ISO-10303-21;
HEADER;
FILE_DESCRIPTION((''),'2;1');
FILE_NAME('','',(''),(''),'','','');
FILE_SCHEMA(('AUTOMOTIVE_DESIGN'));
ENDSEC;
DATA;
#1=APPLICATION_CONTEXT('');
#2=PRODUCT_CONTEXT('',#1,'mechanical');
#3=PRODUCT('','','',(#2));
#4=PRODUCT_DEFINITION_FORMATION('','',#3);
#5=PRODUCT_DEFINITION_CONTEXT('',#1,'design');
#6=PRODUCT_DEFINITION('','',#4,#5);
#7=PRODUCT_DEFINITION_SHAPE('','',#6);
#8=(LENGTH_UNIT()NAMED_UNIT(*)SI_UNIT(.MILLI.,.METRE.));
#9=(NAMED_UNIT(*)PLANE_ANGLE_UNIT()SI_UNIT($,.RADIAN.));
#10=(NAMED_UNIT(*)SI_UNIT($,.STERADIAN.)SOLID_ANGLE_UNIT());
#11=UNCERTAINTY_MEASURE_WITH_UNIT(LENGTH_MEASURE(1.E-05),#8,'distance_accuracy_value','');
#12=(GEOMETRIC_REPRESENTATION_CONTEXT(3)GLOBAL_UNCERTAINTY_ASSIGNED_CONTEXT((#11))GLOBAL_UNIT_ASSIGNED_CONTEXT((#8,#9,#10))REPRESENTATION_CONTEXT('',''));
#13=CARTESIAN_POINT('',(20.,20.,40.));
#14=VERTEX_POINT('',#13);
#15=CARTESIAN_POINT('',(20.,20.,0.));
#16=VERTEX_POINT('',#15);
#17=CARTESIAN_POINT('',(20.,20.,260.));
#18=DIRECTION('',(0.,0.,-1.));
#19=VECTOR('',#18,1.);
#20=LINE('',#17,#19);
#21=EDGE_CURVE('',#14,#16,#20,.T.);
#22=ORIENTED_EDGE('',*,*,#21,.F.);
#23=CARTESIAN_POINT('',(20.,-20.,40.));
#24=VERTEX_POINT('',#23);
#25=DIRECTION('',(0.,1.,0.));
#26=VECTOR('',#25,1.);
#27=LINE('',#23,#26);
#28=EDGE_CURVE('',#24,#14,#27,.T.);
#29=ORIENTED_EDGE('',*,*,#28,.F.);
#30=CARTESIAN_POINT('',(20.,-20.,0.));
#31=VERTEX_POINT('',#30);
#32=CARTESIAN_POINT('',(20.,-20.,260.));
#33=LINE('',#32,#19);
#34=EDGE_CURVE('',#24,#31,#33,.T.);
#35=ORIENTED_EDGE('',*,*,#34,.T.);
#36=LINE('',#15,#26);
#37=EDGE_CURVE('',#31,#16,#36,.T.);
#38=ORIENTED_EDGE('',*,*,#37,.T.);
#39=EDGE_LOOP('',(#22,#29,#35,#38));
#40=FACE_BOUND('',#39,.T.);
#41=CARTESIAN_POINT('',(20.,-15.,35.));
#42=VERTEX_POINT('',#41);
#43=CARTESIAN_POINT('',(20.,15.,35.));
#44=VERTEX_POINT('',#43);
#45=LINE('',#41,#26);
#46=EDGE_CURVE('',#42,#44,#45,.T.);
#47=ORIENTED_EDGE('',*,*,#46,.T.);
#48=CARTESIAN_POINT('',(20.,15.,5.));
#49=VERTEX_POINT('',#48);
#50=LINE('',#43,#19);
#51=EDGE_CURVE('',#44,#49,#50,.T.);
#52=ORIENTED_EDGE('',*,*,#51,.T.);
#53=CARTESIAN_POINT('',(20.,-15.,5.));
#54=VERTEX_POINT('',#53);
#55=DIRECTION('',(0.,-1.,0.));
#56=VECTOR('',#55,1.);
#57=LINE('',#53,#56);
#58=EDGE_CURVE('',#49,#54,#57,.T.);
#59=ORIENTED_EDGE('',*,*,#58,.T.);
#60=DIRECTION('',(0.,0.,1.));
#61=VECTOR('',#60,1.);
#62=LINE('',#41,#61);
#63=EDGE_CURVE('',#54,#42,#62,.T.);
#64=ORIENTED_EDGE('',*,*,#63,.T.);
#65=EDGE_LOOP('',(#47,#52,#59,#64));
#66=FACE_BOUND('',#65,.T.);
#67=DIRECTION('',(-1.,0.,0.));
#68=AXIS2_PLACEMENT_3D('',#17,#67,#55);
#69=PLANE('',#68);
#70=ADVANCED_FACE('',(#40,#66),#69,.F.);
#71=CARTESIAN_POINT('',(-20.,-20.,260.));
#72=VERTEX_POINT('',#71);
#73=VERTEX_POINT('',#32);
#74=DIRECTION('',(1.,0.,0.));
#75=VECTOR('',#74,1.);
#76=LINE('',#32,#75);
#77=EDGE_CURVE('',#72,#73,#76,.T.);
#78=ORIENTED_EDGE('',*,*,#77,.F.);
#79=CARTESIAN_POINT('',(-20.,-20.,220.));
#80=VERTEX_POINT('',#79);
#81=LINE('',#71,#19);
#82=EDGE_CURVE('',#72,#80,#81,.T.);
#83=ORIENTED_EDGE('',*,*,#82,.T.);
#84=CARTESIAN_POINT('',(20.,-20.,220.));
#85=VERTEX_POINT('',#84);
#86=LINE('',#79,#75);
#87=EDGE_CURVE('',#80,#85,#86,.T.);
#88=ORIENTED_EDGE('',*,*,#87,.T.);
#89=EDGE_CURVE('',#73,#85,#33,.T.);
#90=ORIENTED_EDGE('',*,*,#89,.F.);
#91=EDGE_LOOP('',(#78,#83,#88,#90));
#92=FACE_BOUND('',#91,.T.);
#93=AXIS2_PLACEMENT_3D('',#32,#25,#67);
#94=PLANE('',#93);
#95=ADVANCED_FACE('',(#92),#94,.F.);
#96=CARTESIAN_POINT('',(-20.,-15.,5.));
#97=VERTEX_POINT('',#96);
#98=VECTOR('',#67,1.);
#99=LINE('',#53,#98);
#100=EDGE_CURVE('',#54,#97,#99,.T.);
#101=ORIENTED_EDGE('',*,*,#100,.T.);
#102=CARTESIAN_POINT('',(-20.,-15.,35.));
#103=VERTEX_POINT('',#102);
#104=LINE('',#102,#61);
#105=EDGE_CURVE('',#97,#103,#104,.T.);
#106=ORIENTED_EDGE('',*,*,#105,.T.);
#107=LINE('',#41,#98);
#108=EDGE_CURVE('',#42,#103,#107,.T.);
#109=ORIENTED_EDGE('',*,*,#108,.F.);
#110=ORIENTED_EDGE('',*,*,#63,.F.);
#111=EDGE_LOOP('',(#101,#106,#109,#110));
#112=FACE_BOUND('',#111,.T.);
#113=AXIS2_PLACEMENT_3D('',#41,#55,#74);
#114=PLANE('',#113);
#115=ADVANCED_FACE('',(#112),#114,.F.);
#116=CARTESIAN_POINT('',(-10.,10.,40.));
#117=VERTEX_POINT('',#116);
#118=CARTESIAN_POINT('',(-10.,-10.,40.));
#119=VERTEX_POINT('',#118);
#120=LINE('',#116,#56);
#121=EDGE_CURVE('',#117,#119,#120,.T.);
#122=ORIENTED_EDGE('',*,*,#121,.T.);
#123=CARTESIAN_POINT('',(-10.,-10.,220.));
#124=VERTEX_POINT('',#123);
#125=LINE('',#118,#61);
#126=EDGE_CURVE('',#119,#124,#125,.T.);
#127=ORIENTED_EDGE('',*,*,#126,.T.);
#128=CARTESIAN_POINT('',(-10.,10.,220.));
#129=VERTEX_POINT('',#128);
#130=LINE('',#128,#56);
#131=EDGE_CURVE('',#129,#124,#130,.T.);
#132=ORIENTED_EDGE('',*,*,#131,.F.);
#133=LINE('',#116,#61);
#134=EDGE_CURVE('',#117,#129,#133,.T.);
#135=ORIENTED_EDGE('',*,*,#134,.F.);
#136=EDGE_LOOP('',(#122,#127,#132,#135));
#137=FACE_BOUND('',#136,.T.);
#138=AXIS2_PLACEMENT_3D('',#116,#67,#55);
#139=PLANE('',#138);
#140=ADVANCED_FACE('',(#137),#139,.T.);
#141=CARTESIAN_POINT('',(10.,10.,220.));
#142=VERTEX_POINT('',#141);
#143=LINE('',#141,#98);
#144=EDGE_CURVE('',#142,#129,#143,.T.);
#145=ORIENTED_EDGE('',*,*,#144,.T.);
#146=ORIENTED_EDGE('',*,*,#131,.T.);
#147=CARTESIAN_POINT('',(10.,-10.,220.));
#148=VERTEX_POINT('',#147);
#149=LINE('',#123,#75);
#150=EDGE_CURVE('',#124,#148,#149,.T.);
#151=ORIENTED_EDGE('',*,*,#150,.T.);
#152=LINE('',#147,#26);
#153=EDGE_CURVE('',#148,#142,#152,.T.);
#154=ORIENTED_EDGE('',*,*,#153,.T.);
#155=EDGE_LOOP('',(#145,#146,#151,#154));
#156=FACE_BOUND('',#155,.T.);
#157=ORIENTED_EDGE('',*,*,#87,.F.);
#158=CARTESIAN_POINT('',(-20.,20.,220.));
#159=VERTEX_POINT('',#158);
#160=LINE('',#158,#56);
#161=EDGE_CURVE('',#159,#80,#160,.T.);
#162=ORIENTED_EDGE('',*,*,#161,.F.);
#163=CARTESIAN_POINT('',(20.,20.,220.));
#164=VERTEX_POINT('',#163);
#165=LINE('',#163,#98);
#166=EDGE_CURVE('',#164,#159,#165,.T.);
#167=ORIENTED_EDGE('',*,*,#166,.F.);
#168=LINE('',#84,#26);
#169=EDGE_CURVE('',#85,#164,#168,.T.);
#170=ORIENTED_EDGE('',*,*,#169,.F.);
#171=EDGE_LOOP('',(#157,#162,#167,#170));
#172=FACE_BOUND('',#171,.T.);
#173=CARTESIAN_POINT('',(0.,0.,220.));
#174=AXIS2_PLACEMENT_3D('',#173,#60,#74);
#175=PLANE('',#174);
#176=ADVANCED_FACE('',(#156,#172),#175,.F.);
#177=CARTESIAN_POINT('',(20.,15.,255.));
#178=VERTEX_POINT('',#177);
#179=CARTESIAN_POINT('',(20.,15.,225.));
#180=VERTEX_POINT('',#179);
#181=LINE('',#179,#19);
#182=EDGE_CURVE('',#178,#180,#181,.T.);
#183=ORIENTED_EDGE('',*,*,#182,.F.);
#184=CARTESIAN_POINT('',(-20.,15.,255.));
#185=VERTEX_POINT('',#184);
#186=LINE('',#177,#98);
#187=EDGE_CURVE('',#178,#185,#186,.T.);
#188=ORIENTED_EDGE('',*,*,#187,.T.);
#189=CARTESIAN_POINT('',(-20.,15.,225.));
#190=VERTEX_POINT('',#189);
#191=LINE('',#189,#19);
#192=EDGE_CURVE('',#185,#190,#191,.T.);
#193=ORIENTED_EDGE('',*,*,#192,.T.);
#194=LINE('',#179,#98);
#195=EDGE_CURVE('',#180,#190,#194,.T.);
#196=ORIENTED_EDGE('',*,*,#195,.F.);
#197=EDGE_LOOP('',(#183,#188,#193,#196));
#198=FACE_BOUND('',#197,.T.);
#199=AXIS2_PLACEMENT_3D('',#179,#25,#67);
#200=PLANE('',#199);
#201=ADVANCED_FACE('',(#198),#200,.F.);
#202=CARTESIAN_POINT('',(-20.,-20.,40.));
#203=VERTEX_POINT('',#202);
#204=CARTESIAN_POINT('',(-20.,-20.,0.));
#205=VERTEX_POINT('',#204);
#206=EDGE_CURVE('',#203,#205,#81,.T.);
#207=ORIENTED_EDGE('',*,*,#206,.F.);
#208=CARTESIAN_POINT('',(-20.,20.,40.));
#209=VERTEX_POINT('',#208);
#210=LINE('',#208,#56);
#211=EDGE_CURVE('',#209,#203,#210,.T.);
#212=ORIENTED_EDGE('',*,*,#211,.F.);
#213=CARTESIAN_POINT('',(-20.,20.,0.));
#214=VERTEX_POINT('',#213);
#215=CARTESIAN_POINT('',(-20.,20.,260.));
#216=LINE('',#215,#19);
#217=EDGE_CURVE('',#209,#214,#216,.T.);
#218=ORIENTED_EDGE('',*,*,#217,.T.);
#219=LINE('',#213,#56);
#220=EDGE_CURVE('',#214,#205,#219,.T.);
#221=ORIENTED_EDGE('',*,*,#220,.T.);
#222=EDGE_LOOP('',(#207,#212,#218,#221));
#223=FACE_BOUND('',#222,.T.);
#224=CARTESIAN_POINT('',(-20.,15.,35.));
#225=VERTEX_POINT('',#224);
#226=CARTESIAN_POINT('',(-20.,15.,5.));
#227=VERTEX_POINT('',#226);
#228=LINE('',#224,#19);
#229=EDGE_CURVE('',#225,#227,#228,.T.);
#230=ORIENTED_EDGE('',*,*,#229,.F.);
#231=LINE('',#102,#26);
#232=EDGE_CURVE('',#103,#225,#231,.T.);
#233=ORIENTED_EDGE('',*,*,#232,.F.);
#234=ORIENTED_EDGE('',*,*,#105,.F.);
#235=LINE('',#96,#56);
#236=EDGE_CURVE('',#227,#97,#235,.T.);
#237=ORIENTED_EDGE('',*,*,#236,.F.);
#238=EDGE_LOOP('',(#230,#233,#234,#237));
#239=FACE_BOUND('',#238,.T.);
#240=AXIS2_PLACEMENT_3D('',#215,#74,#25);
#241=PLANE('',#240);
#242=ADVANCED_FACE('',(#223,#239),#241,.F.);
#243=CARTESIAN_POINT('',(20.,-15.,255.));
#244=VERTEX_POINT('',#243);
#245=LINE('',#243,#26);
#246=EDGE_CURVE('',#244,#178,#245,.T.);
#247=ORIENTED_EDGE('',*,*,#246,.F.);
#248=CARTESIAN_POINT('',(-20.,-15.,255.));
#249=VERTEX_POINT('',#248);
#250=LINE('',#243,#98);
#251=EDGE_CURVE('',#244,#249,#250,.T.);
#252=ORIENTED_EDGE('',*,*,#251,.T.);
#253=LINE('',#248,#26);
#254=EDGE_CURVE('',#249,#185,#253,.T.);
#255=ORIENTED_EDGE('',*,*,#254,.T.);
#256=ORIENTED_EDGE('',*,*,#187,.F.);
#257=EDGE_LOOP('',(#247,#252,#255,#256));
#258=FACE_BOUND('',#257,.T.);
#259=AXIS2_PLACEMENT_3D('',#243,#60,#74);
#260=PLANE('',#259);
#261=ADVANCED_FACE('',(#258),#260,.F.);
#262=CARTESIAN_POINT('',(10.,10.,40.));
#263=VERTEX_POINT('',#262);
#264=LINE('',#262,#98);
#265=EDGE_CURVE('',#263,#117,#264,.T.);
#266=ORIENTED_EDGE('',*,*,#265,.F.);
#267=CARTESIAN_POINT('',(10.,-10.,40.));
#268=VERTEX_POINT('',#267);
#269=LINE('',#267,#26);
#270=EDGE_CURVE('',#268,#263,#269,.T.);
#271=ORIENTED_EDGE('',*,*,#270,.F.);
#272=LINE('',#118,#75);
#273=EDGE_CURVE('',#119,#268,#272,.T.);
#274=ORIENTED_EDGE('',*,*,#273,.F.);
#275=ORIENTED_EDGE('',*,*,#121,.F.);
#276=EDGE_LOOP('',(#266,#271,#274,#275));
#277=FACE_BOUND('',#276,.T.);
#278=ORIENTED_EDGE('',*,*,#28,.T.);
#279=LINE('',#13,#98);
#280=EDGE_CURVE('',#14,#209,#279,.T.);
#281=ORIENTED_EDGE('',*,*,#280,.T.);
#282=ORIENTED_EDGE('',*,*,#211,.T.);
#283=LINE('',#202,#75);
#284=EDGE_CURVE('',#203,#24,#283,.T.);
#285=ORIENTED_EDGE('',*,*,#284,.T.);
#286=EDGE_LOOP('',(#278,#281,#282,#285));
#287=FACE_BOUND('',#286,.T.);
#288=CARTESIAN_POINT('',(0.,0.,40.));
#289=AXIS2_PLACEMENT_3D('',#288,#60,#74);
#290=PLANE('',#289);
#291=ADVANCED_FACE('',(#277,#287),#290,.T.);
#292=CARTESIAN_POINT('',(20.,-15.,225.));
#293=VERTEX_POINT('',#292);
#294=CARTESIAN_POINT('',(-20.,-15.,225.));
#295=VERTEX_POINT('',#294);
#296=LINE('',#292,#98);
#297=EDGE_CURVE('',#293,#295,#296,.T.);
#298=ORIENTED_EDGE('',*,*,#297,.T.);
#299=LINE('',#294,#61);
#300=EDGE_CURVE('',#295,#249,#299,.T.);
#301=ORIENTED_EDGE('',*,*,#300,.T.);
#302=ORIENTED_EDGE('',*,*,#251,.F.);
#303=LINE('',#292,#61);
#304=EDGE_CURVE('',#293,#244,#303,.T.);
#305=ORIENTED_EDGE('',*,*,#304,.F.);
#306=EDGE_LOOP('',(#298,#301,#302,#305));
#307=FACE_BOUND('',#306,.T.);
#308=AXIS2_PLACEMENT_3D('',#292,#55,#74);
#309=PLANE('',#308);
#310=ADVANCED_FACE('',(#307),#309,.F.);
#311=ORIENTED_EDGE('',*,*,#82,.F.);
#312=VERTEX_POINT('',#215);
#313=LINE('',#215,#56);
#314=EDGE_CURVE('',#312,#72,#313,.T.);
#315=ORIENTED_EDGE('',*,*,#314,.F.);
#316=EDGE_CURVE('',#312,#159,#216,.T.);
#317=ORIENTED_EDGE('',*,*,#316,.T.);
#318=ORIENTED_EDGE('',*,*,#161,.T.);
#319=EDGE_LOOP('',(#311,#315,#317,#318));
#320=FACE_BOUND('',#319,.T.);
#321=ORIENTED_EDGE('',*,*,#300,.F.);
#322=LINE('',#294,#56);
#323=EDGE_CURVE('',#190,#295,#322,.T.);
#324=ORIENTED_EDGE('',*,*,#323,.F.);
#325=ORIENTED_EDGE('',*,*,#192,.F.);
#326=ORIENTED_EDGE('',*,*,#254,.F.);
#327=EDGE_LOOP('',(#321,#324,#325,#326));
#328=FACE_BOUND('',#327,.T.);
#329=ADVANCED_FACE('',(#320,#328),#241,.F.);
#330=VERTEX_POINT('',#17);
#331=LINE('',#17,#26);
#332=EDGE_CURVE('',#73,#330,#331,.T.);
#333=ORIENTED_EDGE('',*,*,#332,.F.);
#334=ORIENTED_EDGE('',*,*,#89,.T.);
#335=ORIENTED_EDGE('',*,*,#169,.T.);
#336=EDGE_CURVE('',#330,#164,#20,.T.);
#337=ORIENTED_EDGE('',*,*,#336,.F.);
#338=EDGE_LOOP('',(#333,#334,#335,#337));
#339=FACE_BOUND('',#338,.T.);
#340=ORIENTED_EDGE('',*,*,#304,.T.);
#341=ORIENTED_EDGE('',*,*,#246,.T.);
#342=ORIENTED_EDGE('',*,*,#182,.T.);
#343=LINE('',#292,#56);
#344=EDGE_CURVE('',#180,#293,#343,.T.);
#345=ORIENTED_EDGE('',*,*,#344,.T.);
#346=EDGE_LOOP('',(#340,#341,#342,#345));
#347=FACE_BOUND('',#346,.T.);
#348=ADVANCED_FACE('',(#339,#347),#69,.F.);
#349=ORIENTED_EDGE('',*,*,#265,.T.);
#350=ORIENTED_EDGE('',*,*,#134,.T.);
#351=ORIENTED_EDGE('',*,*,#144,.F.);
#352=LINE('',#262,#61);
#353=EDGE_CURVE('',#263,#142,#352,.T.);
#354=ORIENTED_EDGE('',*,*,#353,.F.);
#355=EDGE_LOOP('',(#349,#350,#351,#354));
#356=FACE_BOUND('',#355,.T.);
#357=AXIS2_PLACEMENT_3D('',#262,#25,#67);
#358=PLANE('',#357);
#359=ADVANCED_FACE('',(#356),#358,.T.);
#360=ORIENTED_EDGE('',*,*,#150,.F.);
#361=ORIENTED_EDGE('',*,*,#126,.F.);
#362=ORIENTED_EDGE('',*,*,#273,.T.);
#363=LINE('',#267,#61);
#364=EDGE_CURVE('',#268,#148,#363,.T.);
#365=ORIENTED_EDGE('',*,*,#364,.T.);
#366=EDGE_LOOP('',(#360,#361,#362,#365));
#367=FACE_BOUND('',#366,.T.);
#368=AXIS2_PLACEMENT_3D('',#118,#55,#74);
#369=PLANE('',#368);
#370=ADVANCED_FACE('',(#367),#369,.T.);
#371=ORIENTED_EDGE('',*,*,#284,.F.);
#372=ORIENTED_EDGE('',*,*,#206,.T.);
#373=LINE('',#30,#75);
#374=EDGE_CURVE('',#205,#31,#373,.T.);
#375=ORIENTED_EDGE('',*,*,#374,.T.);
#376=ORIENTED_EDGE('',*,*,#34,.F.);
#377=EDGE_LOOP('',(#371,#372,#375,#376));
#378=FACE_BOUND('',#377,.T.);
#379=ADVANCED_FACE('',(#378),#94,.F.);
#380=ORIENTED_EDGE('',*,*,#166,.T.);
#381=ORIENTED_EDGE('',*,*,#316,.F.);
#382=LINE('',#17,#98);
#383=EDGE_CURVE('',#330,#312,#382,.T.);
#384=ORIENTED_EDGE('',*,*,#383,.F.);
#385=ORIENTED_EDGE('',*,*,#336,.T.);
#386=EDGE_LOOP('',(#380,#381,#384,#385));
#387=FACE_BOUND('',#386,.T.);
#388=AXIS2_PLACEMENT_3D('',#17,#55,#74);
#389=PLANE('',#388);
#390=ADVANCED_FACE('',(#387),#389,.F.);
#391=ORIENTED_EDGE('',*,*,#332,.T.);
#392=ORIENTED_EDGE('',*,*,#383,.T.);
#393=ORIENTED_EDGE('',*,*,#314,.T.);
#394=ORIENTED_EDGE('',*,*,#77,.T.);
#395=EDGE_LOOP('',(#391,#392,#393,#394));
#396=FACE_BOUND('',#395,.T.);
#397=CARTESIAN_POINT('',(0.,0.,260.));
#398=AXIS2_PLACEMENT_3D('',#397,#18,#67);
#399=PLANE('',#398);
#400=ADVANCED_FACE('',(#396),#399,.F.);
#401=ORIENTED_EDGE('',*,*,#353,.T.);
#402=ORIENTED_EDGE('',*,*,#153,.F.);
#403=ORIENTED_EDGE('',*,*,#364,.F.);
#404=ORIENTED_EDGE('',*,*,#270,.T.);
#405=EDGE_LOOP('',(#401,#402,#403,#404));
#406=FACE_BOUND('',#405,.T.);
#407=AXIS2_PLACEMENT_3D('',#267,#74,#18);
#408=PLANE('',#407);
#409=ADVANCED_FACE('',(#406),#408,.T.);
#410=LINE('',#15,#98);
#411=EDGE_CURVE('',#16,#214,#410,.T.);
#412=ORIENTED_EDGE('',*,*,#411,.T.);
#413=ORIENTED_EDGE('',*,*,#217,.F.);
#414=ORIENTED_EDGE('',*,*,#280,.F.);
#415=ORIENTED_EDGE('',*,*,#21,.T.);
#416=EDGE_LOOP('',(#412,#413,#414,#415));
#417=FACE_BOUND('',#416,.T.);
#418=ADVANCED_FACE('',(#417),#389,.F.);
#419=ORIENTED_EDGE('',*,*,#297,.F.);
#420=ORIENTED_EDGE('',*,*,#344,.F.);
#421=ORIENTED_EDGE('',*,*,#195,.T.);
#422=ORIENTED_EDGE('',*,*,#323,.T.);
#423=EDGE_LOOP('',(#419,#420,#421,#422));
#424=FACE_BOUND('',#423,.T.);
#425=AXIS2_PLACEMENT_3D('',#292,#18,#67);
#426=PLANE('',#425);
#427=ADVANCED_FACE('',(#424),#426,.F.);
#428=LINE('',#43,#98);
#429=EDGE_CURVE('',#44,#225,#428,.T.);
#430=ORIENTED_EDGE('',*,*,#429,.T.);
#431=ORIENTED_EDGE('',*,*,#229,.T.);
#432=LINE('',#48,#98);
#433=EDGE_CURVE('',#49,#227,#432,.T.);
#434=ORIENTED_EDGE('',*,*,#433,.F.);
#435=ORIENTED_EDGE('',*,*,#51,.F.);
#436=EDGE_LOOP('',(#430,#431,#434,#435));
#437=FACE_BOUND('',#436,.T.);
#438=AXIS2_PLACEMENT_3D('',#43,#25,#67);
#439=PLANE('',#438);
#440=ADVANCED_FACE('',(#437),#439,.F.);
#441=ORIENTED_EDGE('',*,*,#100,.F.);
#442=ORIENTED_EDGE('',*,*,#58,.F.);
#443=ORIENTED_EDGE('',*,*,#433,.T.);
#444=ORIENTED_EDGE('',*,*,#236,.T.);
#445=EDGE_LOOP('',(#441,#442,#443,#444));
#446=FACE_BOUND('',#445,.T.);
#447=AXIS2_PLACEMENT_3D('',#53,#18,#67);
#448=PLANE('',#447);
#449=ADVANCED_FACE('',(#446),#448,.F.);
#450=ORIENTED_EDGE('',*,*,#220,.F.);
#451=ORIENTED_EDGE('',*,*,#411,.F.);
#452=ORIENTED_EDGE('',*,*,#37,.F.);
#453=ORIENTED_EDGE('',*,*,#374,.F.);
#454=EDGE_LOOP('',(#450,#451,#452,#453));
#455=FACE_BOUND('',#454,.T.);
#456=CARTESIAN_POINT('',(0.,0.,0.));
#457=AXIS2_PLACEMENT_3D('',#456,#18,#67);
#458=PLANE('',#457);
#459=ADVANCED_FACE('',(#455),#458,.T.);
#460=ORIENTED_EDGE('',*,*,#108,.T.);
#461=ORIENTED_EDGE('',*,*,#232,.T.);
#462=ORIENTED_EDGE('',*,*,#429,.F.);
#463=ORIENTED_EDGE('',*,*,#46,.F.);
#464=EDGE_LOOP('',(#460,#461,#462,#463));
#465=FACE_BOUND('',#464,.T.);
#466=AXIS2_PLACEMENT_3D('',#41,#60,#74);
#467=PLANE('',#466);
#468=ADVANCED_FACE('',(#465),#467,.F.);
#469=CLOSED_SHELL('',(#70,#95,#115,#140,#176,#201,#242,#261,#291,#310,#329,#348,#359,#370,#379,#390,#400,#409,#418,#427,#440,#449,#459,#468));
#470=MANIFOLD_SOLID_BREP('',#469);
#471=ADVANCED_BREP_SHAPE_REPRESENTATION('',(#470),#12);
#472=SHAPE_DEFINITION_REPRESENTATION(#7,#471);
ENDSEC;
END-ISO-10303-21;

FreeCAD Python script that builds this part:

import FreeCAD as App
import Part
import Sketcher
from FreeCAD import Vector

doc = App.newDocument("Part")
body = doc.addObject("PartDesign::Body", "Body")

# Sketch on XY plane
sketch1 = body.newObject("Sketcher::SketchObject", "Sketch")
sketch1.AttachmentSupport = (doc.getObject("XY_Plane"), [""])
sketch1.MapMode = "FlatFace"
sketch1.addGeometry([
    Part.LineSegment(Vector(-20, 20, 0), Vector(-20, -20, 0)),
    Part.LineSegment(Vector(-20, -20, 0), Vector(20, -20, 0)),
    Part.LineSegment(Vector(20, -20, 0), Vector(20, 20, 0)),
    Part.LineSegment(Vector(20, 20, 0), Vector(-20, 20, 0)),
], False)
sketch1.addConstraint([
    Sketcher.Constraint("Coincident", 0, 2, 1, 1),
    Sketcher.Constraint("Coincident", 1, 2, 2, 1),
    Sketcher.Constraint("Coincident", 2, 2, 3, 1),
    Sketcher.Constraint("Coincident", 3, 2, 0, 1),
    Sketcher.Constraint("Vertical", 0),
    Sketcher.Constraint("Horizontal", 1),
    Sketcher.Constraint("Vertical", 2),
    Sketcher.Constraint("Horizontal", 3),
    Sketcher.Constraint("Symmetric", 0, 2, 2, 2, -1, 1),
    Sketcher.Constraint("Equal", 3, 0),
    Sketcher.Constraint("DistanceX", 1, 1, 1, 2, 40.0),
])
pad1 = body.newObject("PartDesign::Pad", "Pad")
pad1.Profile = sketch1
pad1.Length = 260

# Sketch on XY plane
sketch2 = body.newObject("Sketcher::SketchObject", "Sketch001")
sketch2.AttachmentSupport = (doc.getObject("XY_Plane"), [""])
sketch2.MapMode = "FlatFace"
sketch2.AttachmentOffset = App.Placement(Vector(0, 0, 220), App.Rotation())
sketch2.addGeometry([
    Part.LineSegment(Vector(-20, 20, 0), Vector(-20, -20, 0)),  # 0
    Part.LineSegment(Vector(-20, -20, 0), Vector(20, -20, 0)),  # 1
    Part.LineSegment(Vector(20, -20, 0), Vector(20, 20, 0)),  # 2
    Part.LineSegment(Vector(20, 20, 0), Vector(-20, 20, 0)),  # 3
    Part.LineSegment(Vector(10, -10, 0), Vector(-10, -10, 0)),  # 4
    Part.LineSegment(Vector(-10, -10, 0), Vector(-10, 10, 0)),  # 5
    Part.LineSegment(Vector(-10, 10, 0), Vector(10, 10, 0)),  # 6
    Part.LineSegment(Vector(10, 10, 0), Vector(10, -10, 0)),  # 7
], False)
sketch2.addConstraint([
    Sketcher.Constraint("Coincident", 0, 2, 1, 1),
    Sketcher.Constraint("Coincident", 1, 2, 2, 1),
    Sketcher.Constraint("Coincident", 2, 2, 3, 1),
    Sketcher.Constraint("Coincident", 3, 2, 0, 1),
    Sketcher.Constraint("Coincident", 4, 2, 5, 1),
    Sketcher.Constraint("Coincident", 5, 2, 6, 1),
    Sketcher.Constraint("Coincident", 6, 2, 7, 1),
    Sketcher.Constraint("Coincident", 7, 2, 4, 1),
    Sketcher.Constraint("Vertical", 0),
    Sketcher.Constraint("Horizontal", 1),
    Sketcher.Constraint("Vertical", 2),
    Sketcher.Constraint("Horizontal", 3),
    Sketcher.Constraint("Horizontal", 4),
    Sketcher.Constraint("Vertical", 5),
    Sketcher.Constraint("Horizontal", 6),
    Sketcher.Constraint("Vertical", 7),
    Sketcher.Constraint("Symmetric", 0, 2, 2, 2, -1, 1),
    Sketcher.Constraint("Symmetric", 4, 2, 6, 2, -1, 1),
    Sketcher.Constraint("Equal", 3, 0),
    Sketcher.Constraint("Equal", 6, 5),
    Sketcher.Constraint("DistanceX", 1, 1, 1, 2, 40.0),
    Sketcher.Constraint("DistanceX", 4, 2, 4, 1, 20.0),
])
pocket1 = body.newObject("PartDesign::Pocket", "Pocket")
pocket1.Profile = sketch2
pocket1.Length = 180

# Sketch on YZ plane
sketch3 = body.newObject("Sketcher::SketchObject", "Sketch002")
sketch3.AttachmentSupport = (doc.getObject("YZ_Plane"), [""])
sketch3.MapMode = "FlatFace"
sketch3.AttachmentOffset = App.Placement(Vector(0, 0, -20), App.Rotation())
sketch3.addGeometry([
    Part.LineSegment(Vector(15, 5, 0), Vector(-15, 5, 0)),  # 0
    Part.LineSegment(Vector(-15, 5, 0), Vector(-15, 35, 0)),  # 1
    Part.LineSegment(Vector(-15, 35, 0), Vector(15, 35, 0)),  # 2
    Part.LineSegment(Vector(15, 35, 0), Vector(15, 5, 0)),  # 3
    Part.LineSegment(Vector(15, 225, 0), Vector(-15, 225, 0)),  # 4
    Part.LineSegment(Vector(-15, 225, 0), Vector(-15, 255, 0)),  # 5
    Part.LineSegment(Vector(-15, 255, 0), Vector(15, 255, 0)),  # 6
    Part.LineSegment(Vector(15, 255, 0), Vector(15, 225, 0)),  # 7
], False)
sketch3.addConstraint([
    Sketcher.Constraint("Coincident", 0, 2, 1, 1),
    Sketcher.Constraint("Coincident", 1, 2, 2, 1),
    Sketcher.Constraint("Coincident", 2, 2, 3, 1),
    Sketcher.Constraint("Coincident", 3, 2, 0, 1),
    Sketcher.Constraint("Coincident", 4, 2, 5, 1),
    Sketcher.Constraint("Coincident", 5, 2, 6, 1),
    Sketcher.Constraint("Coincident", 6, 2, 7, 1),
    Sketcher.Constraint("Coincident", 7, 2, 4, 1),
    Sketcher.Constraint("Horizontal", 0),
    Sketcher.Constraint("Vertical", 1),
    Sketcher.Constraint("Horizontal", 2),
    Sketcher.Constraint("Vertical", 3),
    Sketcher.Constraint("Horizontal", 4),
    Sketcher.Constraint("Vertical", 5),
    Sketcher.Constraint("Horizontal", 6),
    Sketcher.Constraint("Vertical", 7),
    Sketcher.Constraint("Vertical", 1, 2, 4, 2),
    Sketcher.Constraint("Vertical", 3, 2, 6, 2),
    Sketcher.Constraint("Equal", 6, 1),
    Sketcher.Constraint("Equal", 3, 5),
    Sketcher.Constraint("DistanceX", 0, 2, 0, 1, 30.0),
    Sketcher.Constraint("DistanceX", 0, 2, -1, 1, 15.0),
    Sketcher.Constraint("DistanceY", -1, 1, 0, 2, 5.0),
    Sketcher.Constraint("DistanceY", -1, 1, 4, 2, 225.0),
])
pocket2 = body.newObject("PartDesign::Pocket", "Pocket001")
pocket2.Profile = sketch3
pocket2.Type = "ThroughAll"
pocket2.Reversed = True

doc.recompute()
